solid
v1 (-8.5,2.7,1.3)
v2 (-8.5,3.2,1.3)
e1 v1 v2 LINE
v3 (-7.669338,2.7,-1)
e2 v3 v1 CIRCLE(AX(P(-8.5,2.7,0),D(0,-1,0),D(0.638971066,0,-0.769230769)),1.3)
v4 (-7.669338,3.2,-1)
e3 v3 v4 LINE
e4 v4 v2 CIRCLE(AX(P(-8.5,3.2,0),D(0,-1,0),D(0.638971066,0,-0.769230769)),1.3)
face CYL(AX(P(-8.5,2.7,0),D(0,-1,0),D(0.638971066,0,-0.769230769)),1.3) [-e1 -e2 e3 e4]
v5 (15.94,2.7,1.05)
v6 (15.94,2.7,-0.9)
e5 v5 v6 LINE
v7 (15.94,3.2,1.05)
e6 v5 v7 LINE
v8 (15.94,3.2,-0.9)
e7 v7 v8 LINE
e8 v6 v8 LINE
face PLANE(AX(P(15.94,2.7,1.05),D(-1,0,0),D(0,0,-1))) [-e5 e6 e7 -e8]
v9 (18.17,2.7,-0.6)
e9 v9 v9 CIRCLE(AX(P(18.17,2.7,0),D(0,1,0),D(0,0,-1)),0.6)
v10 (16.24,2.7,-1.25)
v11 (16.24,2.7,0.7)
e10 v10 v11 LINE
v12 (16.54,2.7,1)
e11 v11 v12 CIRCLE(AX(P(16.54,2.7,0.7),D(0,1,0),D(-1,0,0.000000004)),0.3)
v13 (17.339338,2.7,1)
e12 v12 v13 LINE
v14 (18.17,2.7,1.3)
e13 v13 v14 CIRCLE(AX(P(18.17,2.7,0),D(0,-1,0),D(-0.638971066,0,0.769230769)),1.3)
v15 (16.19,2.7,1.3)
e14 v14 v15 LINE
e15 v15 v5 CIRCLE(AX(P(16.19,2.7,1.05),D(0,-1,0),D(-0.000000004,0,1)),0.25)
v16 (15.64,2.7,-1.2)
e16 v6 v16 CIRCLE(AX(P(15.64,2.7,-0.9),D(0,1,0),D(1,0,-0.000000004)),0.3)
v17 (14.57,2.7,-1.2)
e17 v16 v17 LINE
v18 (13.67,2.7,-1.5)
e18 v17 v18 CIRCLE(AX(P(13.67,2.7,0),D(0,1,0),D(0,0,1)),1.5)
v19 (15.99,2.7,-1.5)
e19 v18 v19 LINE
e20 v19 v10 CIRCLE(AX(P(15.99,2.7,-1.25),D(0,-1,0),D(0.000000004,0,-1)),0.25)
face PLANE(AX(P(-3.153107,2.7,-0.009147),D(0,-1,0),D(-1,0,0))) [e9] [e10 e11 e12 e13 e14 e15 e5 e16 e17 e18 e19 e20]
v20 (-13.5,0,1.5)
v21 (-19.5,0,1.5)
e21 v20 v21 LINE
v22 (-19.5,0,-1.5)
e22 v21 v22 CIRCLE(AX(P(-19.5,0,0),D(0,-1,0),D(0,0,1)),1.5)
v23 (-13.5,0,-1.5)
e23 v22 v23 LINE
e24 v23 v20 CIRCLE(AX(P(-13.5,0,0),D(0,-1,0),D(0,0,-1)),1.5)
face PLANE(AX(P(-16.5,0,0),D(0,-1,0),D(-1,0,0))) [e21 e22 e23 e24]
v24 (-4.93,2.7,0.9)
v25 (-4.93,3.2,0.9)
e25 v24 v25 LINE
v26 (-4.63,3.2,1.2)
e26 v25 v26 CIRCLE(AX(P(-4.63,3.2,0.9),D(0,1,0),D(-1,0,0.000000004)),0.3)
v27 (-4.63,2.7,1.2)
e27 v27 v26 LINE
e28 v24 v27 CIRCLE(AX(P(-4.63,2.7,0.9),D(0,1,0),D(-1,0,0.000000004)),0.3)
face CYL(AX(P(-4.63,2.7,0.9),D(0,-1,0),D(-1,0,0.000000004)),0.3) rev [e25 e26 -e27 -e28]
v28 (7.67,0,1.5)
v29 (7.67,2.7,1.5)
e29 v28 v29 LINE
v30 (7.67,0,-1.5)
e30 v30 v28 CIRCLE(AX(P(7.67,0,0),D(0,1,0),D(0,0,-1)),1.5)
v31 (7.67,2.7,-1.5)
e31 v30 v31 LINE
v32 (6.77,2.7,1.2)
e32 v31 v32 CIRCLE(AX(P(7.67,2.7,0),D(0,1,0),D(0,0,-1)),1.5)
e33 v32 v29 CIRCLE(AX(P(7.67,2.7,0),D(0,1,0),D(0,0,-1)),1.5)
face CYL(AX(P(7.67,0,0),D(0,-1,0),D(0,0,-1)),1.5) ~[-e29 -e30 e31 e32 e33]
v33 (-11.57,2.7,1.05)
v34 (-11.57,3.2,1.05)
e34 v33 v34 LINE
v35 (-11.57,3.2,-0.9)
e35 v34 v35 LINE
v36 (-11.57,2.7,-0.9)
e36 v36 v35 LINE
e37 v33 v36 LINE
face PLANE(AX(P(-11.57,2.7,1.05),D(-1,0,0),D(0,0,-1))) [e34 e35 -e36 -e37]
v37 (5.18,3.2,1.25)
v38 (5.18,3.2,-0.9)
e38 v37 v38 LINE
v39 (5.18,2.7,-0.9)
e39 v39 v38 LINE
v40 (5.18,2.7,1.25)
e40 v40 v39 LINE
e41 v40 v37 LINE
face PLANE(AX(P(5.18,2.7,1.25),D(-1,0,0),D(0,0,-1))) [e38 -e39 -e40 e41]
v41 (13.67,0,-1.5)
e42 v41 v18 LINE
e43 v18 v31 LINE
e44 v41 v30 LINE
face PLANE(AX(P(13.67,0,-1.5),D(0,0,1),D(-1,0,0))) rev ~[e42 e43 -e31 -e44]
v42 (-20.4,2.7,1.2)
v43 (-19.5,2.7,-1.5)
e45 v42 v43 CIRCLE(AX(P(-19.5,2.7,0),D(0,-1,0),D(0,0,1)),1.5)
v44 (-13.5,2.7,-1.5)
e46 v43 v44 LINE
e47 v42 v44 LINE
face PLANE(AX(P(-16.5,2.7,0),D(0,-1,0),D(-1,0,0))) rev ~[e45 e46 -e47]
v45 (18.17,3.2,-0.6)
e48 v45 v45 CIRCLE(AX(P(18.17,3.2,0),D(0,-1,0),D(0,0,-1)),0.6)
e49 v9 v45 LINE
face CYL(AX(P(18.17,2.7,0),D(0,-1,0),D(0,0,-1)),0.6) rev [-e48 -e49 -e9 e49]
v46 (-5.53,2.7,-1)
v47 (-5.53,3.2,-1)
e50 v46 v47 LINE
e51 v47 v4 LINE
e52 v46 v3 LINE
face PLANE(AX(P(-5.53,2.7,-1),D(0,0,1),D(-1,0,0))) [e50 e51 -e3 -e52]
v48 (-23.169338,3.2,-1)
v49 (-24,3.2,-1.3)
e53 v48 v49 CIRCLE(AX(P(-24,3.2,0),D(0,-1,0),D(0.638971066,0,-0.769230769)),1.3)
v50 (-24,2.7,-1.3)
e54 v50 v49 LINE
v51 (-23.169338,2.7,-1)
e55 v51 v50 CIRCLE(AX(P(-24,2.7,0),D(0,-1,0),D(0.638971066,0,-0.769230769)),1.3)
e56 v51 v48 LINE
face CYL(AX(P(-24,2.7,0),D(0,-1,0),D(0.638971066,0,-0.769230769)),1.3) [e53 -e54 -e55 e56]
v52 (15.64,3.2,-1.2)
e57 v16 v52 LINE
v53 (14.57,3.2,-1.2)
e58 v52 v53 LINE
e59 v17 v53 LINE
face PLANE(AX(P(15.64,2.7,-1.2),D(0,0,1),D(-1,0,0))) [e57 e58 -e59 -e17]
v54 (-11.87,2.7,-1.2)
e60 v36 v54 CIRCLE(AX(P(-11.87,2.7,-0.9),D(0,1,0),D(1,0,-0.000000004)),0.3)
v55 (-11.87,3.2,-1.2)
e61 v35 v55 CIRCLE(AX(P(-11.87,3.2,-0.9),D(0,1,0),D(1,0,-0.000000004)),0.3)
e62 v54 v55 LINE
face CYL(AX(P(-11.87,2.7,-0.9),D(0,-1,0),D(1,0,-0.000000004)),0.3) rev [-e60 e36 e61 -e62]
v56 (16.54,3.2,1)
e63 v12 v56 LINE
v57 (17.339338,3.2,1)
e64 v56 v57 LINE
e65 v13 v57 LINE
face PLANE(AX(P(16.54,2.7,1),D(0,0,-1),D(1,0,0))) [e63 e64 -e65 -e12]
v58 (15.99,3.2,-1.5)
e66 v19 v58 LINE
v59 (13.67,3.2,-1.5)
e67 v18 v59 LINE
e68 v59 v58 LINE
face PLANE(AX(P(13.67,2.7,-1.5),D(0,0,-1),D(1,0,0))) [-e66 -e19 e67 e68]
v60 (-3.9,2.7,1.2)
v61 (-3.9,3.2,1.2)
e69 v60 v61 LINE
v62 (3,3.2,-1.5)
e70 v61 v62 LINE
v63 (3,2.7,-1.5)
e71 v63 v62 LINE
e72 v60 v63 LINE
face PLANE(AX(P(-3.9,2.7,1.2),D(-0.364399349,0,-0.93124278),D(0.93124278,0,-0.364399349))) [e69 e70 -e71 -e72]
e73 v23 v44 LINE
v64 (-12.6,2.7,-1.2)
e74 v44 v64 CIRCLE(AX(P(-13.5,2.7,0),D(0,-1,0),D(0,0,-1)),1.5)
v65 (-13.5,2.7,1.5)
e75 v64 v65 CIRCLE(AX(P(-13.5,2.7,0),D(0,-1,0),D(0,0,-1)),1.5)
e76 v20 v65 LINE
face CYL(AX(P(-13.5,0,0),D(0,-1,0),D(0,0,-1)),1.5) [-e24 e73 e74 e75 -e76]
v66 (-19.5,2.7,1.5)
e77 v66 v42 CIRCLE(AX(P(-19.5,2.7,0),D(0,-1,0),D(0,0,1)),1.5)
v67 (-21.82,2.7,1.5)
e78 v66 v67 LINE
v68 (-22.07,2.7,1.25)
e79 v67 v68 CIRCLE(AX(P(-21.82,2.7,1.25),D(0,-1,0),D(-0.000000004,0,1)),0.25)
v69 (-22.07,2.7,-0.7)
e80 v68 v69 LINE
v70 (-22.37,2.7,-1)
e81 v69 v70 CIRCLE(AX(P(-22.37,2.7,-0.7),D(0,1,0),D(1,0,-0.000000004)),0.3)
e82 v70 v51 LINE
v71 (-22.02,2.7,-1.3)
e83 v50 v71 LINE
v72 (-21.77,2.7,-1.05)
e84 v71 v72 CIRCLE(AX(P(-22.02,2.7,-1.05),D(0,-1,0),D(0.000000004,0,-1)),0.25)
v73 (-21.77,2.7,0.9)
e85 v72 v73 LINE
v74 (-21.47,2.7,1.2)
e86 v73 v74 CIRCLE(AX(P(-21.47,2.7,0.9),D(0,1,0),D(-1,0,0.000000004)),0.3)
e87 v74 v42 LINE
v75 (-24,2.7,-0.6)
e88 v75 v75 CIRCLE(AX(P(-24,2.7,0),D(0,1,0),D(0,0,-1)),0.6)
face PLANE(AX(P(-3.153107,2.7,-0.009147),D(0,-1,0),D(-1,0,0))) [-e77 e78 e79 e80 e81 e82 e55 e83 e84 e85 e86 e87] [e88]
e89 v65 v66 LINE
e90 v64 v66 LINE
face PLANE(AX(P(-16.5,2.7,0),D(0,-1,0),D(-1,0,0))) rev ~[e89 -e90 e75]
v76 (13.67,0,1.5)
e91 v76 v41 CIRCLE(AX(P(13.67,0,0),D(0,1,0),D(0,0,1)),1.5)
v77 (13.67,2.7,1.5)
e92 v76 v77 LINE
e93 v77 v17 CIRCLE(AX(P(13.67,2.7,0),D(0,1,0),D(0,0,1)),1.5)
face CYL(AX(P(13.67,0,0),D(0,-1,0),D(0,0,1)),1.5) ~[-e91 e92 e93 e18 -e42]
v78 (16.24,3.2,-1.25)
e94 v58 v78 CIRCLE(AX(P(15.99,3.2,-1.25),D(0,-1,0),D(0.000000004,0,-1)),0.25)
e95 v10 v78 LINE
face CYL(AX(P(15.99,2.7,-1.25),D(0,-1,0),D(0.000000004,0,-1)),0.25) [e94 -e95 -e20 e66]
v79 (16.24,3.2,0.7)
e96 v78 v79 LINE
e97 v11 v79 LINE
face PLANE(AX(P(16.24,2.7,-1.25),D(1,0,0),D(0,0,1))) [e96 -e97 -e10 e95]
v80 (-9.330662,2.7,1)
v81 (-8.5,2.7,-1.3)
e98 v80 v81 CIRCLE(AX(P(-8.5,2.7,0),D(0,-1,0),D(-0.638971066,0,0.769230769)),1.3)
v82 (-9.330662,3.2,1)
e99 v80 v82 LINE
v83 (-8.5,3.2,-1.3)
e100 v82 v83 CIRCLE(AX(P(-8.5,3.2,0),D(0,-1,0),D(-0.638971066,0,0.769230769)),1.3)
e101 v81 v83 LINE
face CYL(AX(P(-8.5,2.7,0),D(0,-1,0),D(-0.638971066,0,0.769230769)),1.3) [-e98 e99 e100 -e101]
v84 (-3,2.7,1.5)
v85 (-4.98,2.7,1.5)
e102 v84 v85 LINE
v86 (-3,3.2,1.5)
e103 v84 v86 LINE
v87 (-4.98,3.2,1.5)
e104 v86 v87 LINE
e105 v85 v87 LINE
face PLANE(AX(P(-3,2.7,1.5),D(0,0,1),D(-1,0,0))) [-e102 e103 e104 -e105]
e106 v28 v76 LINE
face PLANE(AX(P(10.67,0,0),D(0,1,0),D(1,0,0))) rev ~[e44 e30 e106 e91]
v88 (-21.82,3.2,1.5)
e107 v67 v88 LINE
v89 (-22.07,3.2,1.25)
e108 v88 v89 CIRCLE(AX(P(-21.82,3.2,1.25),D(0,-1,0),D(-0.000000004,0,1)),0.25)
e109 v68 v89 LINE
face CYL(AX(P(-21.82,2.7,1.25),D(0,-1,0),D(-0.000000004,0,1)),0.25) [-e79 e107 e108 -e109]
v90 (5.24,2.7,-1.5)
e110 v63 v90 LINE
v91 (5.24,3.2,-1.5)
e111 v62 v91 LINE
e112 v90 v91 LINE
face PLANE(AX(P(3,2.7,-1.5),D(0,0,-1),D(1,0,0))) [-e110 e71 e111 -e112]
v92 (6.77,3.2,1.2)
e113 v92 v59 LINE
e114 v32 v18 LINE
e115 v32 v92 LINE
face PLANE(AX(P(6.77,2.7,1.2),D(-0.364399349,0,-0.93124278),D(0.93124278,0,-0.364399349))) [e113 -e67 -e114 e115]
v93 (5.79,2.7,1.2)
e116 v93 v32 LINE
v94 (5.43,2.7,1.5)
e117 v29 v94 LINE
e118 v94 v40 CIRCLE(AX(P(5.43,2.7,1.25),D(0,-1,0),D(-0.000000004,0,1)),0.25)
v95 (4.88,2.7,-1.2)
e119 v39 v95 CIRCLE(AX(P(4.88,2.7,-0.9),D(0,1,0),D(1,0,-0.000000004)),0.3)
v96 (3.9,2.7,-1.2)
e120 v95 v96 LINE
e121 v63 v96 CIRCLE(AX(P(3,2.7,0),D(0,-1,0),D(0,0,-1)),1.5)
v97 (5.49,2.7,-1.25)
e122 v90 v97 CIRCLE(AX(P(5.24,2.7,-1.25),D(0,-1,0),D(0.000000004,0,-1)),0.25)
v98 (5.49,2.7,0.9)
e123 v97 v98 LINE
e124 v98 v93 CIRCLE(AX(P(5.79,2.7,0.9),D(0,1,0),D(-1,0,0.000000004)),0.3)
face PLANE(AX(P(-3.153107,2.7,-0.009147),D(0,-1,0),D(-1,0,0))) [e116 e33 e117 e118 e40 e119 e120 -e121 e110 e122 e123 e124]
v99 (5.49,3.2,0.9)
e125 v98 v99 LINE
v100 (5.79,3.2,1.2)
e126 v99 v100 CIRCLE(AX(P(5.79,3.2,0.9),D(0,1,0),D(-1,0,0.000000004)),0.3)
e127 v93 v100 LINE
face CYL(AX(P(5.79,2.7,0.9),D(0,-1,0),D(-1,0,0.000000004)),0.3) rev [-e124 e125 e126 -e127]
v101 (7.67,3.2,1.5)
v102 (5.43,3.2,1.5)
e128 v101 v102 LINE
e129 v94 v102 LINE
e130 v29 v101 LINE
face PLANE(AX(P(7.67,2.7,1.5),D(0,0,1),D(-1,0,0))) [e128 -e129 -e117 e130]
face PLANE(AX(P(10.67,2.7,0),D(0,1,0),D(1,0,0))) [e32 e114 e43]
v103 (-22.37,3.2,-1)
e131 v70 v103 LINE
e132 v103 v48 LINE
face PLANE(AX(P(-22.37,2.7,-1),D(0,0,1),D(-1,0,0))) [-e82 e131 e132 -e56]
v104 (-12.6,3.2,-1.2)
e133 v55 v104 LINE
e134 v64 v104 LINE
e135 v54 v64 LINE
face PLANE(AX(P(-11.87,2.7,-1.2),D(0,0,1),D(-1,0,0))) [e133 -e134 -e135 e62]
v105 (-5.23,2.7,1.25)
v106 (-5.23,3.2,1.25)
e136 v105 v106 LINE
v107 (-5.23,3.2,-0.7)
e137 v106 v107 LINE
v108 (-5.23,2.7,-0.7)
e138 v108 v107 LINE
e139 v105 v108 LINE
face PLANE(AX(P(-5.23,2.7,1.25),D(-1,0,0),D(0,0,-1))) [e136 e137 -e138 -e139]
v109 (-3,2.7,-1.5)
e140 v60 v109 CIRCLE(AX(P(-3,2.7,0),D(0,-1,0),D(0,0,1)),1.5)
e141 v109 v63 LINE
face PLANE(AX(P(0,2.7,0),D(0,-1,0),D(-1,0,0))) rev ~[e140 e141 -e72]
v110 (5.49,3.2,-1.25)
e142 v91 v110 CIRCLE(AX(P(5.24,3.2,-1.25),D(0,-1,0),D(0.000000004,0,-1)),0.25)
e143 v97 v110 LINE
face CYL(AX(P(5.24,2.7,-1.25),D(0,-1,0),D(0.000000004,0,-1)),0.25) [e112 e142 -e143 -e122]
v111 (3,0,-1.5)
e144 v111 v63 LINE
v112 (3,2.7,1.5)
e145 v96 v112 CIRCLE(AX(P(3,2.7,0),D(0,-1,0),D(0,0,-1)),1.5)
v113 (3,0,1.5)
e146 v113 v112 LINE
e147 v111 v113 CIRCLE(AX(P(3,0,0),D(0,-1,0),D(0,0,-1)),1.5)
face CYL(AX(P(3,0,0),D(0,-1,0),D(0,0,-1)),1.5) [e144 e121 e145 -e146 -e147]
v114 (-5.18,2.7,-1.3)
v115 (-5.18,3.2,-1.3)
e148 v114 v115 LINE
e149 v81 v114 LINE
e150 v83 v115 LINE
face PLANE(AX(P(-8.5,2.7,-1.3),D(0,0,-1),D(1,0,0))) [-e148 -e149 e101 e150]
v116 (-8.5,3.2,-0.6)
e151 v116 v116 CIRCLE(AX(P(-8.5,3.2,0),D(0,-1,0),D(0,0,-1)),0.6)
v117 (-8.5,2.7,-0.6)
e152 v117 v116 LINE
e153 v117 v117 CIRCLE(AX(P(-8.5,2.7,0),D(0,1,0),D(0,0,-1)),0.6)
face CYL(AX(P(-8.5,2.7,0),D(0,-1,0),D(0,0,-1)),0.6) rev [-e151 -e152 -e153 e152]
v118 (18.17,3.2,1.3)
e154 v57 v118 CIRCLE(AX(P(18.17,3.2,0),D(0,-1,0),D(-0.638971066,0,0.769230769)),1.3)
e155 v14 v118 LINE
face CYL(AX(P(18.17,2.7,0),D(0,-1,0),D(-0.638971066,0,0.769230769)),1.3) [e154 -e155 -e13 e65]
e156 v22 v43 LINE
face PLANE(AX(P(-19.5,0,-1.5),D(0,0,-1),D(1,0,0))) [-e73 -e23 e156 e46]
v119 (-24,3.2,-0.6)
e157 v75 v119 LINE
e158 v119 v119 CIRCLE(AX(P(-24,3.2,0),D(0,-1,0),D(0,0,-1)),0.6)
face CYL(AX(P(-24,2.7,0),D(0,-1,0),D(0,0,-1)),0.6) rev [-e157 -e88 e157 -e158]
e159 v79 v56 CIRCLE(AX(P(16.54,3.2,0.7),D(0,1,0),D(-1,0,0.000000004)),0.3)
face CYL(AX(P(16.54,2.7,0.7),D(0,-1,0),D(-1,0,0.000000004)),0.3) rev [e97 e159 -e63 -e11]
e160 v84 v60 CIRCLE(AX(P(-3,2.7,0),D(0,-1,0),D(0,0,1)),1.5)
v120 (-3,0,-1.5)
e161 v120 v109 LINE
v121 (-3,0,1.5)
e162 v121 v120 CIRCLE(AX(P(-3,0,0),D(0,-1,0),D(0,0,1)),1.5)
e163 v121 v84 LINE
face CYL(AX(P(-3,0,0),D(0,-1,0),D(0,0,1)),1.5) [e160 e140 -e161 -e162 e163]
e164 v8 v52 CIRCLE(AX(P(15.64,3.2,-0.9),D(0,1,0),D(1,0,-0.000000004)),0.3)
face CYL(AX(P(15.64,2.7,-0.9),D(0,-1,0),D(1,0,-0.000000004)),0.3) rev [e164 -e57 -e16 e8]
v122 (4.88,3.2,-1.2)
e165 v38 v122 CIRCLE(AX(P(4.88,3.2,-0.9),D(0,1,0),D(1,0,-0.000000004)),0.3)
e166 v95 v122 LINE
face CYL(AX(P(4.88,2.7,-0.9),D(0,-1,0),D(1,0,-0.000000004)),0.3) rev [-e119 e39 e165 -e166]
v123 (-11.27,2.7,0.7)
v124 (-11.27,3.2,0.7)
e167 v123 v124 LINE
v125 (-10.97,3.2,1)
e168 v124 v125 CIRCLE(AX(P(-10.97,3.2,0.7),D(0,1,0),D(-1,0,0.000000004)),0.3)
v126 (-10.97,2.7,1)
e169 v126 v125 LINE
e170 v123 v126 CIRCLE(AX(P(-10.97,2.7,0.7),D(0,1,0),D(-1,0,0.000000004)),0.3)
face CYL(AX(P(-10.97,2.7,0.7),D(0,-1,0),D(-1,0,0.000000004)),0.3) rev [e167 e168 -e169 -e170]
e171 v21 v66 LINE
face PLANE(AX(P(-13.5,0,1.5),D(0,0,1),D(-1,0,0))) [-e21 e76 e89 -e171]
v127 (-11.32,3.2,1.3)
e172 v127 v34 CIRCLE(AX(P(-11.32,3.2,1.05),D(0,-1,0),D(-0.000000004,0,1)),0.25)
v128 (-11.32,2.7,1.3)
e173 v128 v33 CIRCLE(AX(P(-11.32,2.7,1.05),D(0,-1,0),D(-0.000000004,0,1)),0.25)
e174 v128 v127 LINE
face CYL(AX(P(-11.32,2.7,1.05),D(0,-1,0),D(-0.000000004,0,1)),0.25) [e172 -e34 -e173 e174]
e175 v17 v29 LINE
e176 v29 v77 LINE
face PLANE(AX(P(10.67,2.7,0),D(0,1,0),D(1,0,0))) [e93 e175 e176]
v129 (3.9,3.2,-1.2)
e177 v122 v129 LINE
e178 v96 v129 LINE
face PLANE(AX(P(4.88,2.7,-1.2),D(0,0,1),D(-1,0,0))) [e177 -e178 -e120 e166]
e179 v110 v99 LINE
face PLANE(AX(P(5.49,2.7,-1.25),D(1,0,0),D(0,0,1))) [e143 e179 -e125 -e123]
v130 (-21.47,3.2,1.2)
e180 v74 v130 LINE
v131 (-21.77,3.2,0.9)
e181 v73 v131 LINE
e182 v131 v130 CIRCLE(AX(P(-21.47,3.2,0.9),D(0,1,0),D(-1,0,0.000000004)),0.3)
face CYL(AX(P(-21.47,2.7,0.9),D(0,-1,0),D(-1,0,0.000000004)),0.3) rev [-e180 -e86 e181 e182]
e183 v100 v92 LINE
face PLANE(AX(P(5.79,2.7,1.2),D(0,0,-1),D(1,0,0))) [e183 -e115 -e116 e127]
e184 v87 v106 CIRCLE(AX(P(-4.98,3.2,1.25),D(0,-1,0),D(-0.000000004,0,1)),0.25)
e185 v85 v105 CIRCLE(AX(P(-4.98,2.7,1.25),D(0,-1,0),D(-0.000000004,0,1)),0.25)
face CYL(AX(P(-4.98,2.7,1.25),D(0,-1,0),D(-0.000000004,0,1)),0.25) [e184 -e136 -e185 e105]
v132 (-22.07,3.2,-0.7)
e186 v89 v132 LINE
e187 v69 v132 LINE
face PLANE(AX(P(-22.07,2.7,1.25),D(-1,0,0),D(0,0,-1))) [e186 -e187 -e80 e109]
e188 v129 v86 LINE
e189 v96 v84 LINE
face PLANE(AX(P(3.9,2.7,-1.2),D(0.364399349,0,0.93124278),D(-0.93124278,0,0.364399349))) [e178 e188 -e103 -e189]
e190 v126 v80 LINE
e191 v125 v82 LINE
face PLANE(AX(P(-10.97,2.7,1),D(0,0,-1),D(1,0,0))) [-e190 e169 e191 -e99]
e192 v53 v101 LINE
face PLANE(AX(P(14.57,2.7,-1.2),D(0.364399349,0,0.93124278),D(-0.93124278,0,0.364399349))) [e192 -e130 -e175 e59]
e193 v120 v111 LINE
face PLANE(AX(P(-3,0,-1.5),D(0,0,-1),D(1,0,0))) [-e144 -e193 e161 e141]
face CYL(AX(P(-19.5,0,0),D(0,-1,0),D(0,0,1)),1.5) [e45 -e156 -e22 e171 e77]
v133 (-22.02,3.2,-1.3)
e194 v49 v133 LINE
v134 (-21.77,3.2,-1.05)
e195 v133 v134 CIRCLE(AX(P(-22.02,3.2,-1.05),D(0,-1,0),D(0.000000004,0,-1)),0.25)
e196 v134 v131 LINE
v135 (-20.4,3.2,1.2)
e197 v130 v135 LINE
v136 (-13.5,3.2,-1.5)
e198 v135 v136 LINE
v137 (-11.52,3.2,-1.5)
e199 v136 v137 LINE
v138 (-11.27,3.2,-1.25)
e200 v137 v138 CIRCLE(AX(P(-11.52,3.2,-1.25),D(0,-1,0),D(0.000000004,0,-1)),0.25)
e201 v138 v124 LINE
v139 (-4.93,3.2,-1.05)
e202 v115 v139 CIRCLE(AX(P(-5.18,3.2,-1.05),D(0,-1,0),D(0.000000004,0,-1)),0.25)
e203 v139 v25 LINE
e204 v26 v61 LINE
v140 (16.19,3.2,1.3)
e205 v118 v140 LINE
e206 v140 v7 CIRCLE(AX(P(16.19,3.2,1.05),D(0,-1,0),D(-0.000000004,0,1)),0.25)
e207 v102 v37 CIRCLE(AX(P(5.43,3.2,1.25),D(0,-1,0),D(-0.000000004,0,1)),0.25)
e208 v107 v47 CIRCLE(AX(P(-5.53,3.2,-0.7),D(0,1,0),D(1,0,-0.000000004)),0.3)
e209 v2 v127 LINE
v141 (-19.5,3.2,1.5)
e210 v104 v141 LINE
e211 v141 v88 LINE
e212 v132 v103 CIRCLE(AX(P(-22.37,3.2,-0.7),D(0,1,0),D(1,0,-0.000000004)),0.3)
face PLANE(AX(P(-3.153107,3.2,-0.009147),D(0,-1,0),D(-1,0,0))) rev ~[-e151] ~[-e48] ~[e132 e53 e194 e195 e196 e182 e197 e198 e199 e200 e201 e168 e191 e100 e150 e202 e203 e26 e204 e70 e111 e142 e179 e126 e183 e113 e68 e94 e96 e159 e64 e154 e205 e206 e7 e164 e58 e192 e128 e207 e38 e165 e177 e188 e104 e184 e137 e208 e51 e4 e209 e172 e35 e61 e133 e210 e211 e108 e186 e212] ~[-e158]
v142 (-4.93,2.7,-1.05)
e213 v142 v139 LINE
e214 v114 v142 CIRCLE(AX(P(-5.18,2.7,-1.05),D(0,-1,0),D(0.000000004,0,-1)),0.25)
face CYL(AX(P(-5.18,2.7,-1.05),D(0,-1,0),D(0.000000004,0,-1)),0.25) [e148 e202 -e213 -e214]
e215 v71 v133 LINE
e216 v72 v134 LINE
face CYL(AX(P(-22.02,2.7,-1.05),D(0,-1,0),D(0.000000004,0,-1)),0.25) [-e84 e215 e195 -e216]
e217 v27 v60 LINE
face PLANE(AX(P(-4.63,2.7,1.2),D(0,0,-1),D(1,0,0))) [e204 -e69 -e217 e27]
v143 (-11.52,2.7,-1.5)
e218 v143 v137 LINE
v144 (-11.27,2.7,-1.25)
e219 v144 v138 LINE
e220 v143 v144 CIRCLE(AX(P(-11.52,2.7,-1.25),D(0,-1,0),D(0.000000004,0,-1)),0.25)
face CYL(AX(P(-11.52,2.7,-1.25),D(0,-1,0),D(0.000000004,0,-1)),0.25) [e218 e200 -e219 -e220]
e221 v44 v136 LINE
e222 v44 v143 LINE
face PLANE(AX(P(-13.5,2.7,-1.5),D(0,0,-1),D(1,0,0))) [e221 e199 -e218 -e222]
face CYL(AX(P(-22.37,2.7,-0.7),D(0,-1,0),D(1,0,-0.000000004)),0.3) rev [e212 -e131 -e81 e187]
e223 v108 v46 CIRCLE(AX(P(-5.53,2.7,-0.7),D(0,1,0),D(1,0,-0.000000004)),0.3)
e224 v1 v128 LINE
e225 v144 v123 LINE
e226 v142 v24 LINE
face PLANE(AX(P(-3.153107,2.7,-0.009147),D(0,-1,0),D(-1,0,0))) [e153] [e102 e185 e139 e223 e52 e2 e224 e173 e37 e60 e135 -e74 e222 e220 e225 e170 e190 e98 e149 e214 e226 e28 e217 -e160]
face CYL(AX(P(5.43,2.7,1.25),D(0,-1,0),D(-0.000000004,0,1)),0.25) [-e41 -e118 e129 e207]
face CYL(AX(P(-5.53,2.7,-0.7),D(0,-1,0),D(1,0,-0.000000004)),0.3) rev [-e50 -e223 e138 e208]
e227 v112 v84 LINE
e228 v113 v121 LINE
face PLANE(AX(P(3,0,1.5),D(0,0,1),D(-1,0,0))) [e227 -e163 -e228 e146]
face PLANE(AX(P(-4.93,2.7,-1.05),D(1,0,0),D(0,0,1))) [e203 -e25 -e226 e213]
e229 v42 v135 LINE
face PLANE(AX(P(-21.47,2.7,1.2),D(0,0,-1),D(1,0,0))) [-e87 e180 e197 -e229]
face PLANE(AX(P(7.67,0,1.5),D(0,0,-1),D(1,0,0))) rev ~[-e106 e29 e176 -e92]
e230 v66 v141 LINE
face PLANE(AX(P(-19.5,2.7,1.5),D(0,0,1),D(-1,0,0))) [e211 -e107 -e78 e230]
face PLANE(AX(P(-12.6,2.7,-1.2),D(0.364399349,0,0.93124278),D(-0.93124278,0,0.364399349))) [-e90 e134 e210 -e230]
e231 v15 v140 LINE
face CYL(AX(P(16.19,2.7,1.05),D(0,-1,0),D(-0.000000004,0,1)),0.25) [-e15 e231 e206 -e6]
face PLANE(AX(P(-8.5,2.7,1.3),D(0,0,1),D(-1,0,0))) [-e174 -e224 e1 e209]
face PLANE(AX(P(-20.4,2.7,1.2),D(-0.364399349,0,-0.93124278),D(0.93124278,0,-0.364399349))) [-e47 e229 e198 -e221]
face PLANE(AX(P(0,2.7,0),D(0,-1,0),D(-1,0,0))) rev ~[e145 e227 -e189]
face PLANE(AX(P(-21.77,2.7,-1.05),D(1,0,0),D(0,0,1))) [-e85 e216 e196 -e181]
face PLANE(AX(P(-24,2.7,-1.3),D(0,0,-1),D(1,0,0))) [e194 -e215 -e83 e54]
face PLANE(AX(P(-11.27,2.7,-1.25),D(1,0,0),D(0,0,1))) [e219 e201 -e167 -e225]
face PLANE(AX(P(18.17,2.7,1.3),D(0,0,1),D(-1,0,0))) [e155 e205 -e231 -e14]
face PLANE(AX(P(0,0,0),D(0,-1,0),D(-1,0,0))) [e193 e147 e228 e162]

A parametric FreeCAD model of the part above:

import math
import FreeCAD as App
import Part
import Sketcher
from FreeCAD import Vector
Q = App.Units.Quantity

doc = App.newDocument("Part")
body = doc.addObject("PartDesign::Body", "Body")

# Sketch on XZ plane
sketch1 = body.newObject("Sketcher::SketchObject", "Sketch")
sketch1.AttachmentSupport = (doc.getObject("XZ_Plane"), [""])
sketch1.MapMode = "FlatFace"
sketch1.addGeometry(Part.LineSegment(Vector(7.67, 1.5, 0), Vector(13.67, 1.5, 0)), False)
sketch1.addGeometry(Part.ArcOfCircle(Part.Circle(Vector(13.67, 0, 0), Vector(0, 0, 1), 1.5), math.radians(-90), math.radians(90)), False)
sketch1.addGeometry(Part.LineSegment(Vector(13.67, -1.5, 0), Vector(7.67, -1.5, 0)), False)
sketch1.addGeometry(Part.ArcOfCircle(Part.Circle(Vector(7.67, 0, 0), Vector(0, 0, 1), 1.5), math.radians(90), math.radians(270)), False)
sketch1.addConstraint(Sketcher.Constraint("Tangent", 0, 2, 1, 2))
sketch1.addConstraint(Sketcher.Constraint("Tangent", 1, 1, 2, 1))
sketch1.addConstraint(Sketcher.Constraint("Tangent", 2, 2, 3, 2))
sketch1.addConstraint(Sketcher.Constraint("Tangent", 3, 1, 0, 1))
sketch1.addConstraint(Sketcher.Constraint("Horizontal", 0))
sketch1.addConstraint(Sketcher.Constraint("Horizontal", 2))
sketch1.addConstraint(Sketcher.Constraint("PointOnObject", 1, 3, -1))
sketch1.addConstraint(Sketcher.Constraint("Radius", 1, Q("1.5 mm")))
sketch1.addConstraint(Sketcher.Constraint("DistanceX", 0, 1, 0, 2, Q("6 mm")))
sketch1.addConstraint(Sketcher.Constraint("DistanceX", -1, 1, 1, 3, Q("13.67 mm")))
pad1 = body.newObject("PartDesign::Pad", "Pad")
pad1.Profile = sketch1
pad1.Length = 2.7
pad1.Reversed = True
body2 = doc.addObject("PartDesign::Body", "Body001")

# Sketch on XZ plane
sketch2 = body2.newObject("Sketcher::SketchObject", "Sketch001")
sketch2.AttachmentSupport = (doc.getObject("XZ_Plane001"), [""])
sketch2.MapMode = "FlatFace"
sketch2.addGeometry(Part.LineSegment(Vector(-13.5, -1.5, 0), Vector(-19.5, -1.5, 0)), False)
sketch2.addGeometry(Part.ArcOfCircle(Part.Circle(Vector(-19.5, 0, 0), Vector(0, 0, 1), 1.5), math.radians(90), math.radians(270)), False)
sketch2.addGeometry(Part.LineSegment(Vector(-19.5, 1.5, 0), Vector(-13.5, 1.5, 0)), False)
sketch2.addGeometry(Part.ArcOfCircle(Part.Circle(Vector(-13.5, 0, 0), Vector(0, 0, 1), 1.5), math.radians(-90), math.radians(90)), False)
sketch2.addConstraint(Sketcher.Constraint("Tangent", 0, 2, 1, 2))
sketch2.addConstraint(Sketcher.Constraint("Tangent", 1, 1, 2, 1))
sketch2.addConstraint(Sketcher.Constraint("Tangent", 2, 2, 3, 2))
sketch2.addConstraint(Sketcher.Constraint("Tangent", 3, 1, 0, 1))
sketch2.addConstraint(Sketcher.Constraint("Horizontal", 0))
sketch2.addConstraint(Sketcher.Constraint("Horizontal", 2))
sketch2.addConstraint(Sketcher.Constraint("PointOnObject", 1, 3, -1))
sketch2.addConstraint(Sketcher.Constraint("Radius", 1, Q("1.5 mm")))
sketch2.addConstraint(Sketcher.Constraint("DistanceX", 0, 2, 0, 1, Q("6 mm")))
sketch2.addConstraint(Sketcher.Constraint("DistanceX", 1, 3, -1, 1, Q("19.5 mm")))
pad2 = body2.newObject("PartDesign::Pad", "Pad001")
pad2.Profile = sketch2
pad2.Length = 2.7
pad2.Reversed = True
body3 = doc.addObject("PartDesign::Body", "Body002")

# Sketch on XZ plane
sketch3 = body3.newObject("Sketcher::SketchObject", "Sketch002")
sketch3.AttachmentSupport = (doc.getObject("XZ_Plane002"), [""])
sketch3.MapMode = "FlatFace"
sketch3.addGeometry(Part.LineSegment(Vector(3, -1.5, 0), Vector(-3, -1.5, 0)), False)
sketch3.addGeometry(Part.ArcOfCircle(Part.Circle(Vector(-3, 0, 0), Vector(0, 0, 1), 1.5), math.radians(90), math.radians(270)), False)
sketch3.addGeometry(Part.LineSegment(Vector(-3, 1.5, 0), Vector(3, 1.5, 0)), False)
sketch3.addGeometry(Part.ArcOfCircle(Part.Circle(Vector(3, 0, 0), Vector(0, 0, 1), 1.5), math.radians(-90), math.radians(90)), False)
sketch3.addConstraint(Sketcher.Constraint("Tangent", 0, 2, 1, 2))
sketch3.addConstraint(Sketcher.Constraint("Tangent", 1, 1, 2, 1))
sketch3.addConstraint(Sketcher.Constraint("Tangent", 2, 2, 3, 2))
sketch3.addConstraint(Sketcher.Constraint("Tangent", 3, 1, 0, 1))
sketch3.addConstraint(Sketcher.Constraint("Horizontal", 0))
sketch3.addConstraint(Sketcher.Constraint("Horizontal", 2))
sketch3.addConstraint(Sketcher.Constraint("Symmetric", 1, 3, 3, 3, -1, 1))
sketch3.addConstraint(Sketcher.Constraint("Radius", 1, Q("1.5 mm")))
sketch3.addConstraint(Sketcher.Constraint("DistanceX", 0, 2, 0, 1, Q("6 mm")))
pad3 = body3.newObject("PartDesign::Pad", "Pad002")
pad3.Profile = sketch3
pad3.Length = 2.7
pad3.Reversed = True
body.AllowCompound = True
doc.recompute()

boolean = body.newObject("PartDesign::Boolean", "Boolean")
boolean.Type = "Fuse"
boolean.addObjects([body2])
doc.recompute()

boolean2 = body.newObject("PartDesign::Boolean", "Boolean001")
boolean2.Type = "Fuse"
boolean2.addObjects([body3])

# Sketch on XZ plane
sketch4 = body.newObject("Sketcher::SketchObject", "Sketch003")
sketch4.AttachmentSupport = (doc.getObject("XZ_Plane"), [""])
sketch4.MapMode = "FlatFace"
sketch4.AttachmentOffset = App.Placement(Vector(0, 0, -2.7), App.Rotation())
sketch4.addGeometry(Part.LineSegment(Vector(-22.02, -1.3, 0), Vector(-24, -1.3, 0)), False)
sketch4.addGeometry(Part.ArcOfCircle(Part.Circle(Vector(-24, 0, 0), Vector(0, 0, 1), 1.3), math.radians(-50.284863), math.radians(270)), False)
sketch4.addGeometry(Part.LineSegment(Vector(-23.169338, -1, 0), Vector(-22.37, -1, 0)), False)
sketch4.addGeometry(Part.ArcOfCircle(Part.Circle(Vector(-22.37, -0.7, 0), Vector(0, 0, 1), 0.3), math.radians(-90), math.radians(0)), False)
sketch4.addGeometry(Part.LineSegment(Vector(-22.07, -0.7, 0), Vector(-22.07, 1.25, 0)), False)
sketch4.addGeometry(Part.ArcOfCircle(Part.Circle(Vector(-21.82, 1.25, 0), Vector(0, 0, 1), 0.25), math.radians(90), math.radians(180)), False)
sketch4.addGeometry(Part.LineSegment(Vector(-21.82, 1.5, 0), Vector(-19.5, 1.5, 0)), False)
sketch4.addGeometry(Part.LineSegment(Vector(-19.5, 1.5, 0), Vector(-12.6, -1.2, 0)), False)
sketch4.addGeometry(Part.LineSegment(Vector(-12.6, -1.2, 0), Vector(-11.87, -1.2, 0)), False)
sketch4.addGeometry(Part.ArcOfCircle(Part.Circle(Vector(-11.87, -0.9, 0), Vector(0, 0, 1), 0.3), math.radians(-90), math.radians(0)), False)
sketch4.addGeometry(Part.LineSegment(Vector(-11.57, -0.9, 0), Vector(-11.57, 1.05, 0)), False)
sketch4.addGeometry(Part.ArcOfCircle(Part.Circle(Vector(-11.32, 1.05, 0), Vector(0, 0, 1), 0.25), math.radians(90), math.radians(180)), False)
sketch4.addGeometry(Part.LineSegment(Vector(-11.32, 1.3, 0), Vector(-8.5, 1.3, 0)), False)
sketch4.addGeometry(Part.ArcOfCircle(Part.Circle(Vector(-8.5, 0, 0), Vector(0, 0, 1), 1.3), math.radians(-50.284863), math.radians(90)), False)
sketch4.addGeometry(Part.LineSegment(Vector(-7.669338, -1, 0), Vector(-5.53, -1, 0)), False)
sketch4.addGeometry(Part.ArcOfCircle(Part.Circle(Vector(-5.53, -0.7, 0), Vector(0, 0, 1), 0.3), math.radians(-90), math.radians(0)), False)
sketch4.addGeometry(Part.LineSegment(Vector(-5.23, -0.7, 0), Vector(-5.23, 1.25, 0)), False)
sketch4.addGeometry(Part.ArcOfCircle(Part.Circle(Vector(-4.98, 1.25, 0), Vector(0, 0, 1), 0.25), math.radians(90), math.radians(180)), False)
sketch4.addGeometry(Part.LineSegment(Vector(-4.98, 1.5, 0), Vector(-3, 1.5, 0)), False)
sketch4.addGeometry(Part.LineSegment(Vector(-3, 1.5, 0), Vector(3.9, -1.2, 0)), False)
sketch4.addGeometry(Part.LineSegment(Vector(3.9, -1.2, 0), Vector(4.88, -1.2, 0)), False)
sketch4.addGeometry(Part.ArcOfCircle(Part.Circle(Vector(4.88, -0.9, 0), Vector(0, 0, 1), 0.3), math.radians(-90), math.radians(0)), False)
sketch4.addGeometry(Part.LineSegment(Vector(5.18, -0.9, 0), Vector(5.18, 1.25, 0)), False)
sketch4.addGeometry(Part.ArcOfCircle(Part.Circle(Vector(5.43, 1.25, 0), Vector(0, 0, 1), 0.25), math.radians(90), math.radians(180)), False)
sketch4.addGeometry(Part.LineSegment(Vector(5.43, 1.5, 0), Vector(7.67, 1.5, 0)), False)
sketch4.addGeometry(Part.LineSegment(Vector(7.67, 1.5, 0), Vector(14.57, -1.2, 0)), False)
sketch4.addGeometry(Part.LineSegment(Vector(14.57, -1.2, 0), Vector(15.64, -1.2, 0)), False)
sketch4.addGeometry(Part.ArcOfCircle(Part.Circle(Vector(15.64, -0.9, 0), Vector(0, 0, 1), 0.3), math.radians(-90), math.radians(0)), False)
sketch4.addGeometry(Part.LineSegment(Vector(15.94, -0.9, 0), Vector(15.94, 1.05, 0)), False)
sketch4.addGeometry(Part.ArcOfCircle(Part.Circle(Vector(16.19, 1.05, 0), Vector(0, 0, 1), 0.25), math.radians(90), math.radians(180)), False)
sketch4.addGeometry(Part.LineSegment(Vector(16.19, 1.3, 0), Vector(18.17, 1.3, 0)), False)
sketch4.addGeometry(Part.ArcOfCircle(Part.Circle(Vector(18.17, 0, 0), Vector(0, 0, 1), 1.3), math.radians(129.715137), math.radians(450)), False)
sketch4.addGeometry(Part.LineSegment(Vector(17.339338, 1, 0), Vector(16.54, 1, 0)), False)
sketch4.addGeometry(Part.ArcOfCircle(Part.Circle(Vector(16.54, 0.7, 0), Vector(0, 0, 1), 0.3), math.radians(90), math.radians(180)), False)
sketch4.addGeometry(Part.LineSegment(Vector(16.24, 0.7, 0), Vector(16.24, -1.25, 0)), False)
sketch4.addGeometry(Part.ArcOfCircle(Part.Circle(Vector(15.99, -1.25, 0), Vector(0, 0, 1), 0.25), math.radians(-90), math.radians(0)), False)
sketch4.addGeometry(Part.LineSegment(Vector(15.99, -1.5, 0), Vector(13.67, -1.5, 0)), False)
sketch4.addGeometry(Part.LineSegment(Vector(13.67, -1.5, 0), Vector(6.77, 1.2, 0)), False)
sketch4.addGeometry(Part.LineSegment(Vector(6.77, 1.2, 0), Vector(5.79, 1.2, 0)), False)
sketch4.addGeometry(Part.ArcOfCircle(Part.Circle(Vector(5.79, 0.9, 0), Vector(0, 0, 1), 0.3), math.radians(90), math.radians(180)), False)
sketch4.addGeometry(Part.LineSegment(Vector(5.49, 0.9, 0), Vector(5.49, -1.25, 0)), False)
sketch4.addGeometry(Part.ArcOfCircle(Part.Circle(Vector(5.24, -1.25, 0), Vector(0, 0, 1), 0.25), math.radians(-90), math.radians(0)), False)
sketch4.addGeometry(Part.LineSegment(Vector(5.24, -1.5, 0), Vector(3, -1.5, 0)), False)
sketch4.addGeometry(Part.LineSegment(Vector(3, -1.5, 0), Vector(-3.9, 1.2, 0)), False)
sketch4.addGeometry(Part.LineSegment(Vector(-3.9, 1.2, 0), Vector(-4.63, 1.2, 0)), False)
sketch4.addGeometry(Part.ArcOfCircle(Part.Circle(Vector(-4.63, 0.9, 0), Vector(0, 0, 1), 0.3), math.radians(90), math.radians(180)), False)
sketch4.addGeometry(Part.LineSegment(Vector(-4.93, 0.9, 0), Vector(-4.93, -1.05, 0)), False)
sketch4.addGeometry(Part.ArcOfCircle(Part.Circle(Vector(-5.18, -1.05, 0), Vector(0, 0, 1), 0.25), math.radians(-90), math.radians(0)), False)
sketch4.addGeometry(Part.LineSegment(Vector(-5.18, -1.3, 0), Vector(-8.5, -1.3, 0)), False)
sketch4.addGeometry(Part.ArcOfCircle(Part.Circle(Vector(-8.5, 0, 0), Vector(0, 0, 1), 1.3), math.radians(129.715137), math.radians(270)), False)
sketch4.addGeometry(Part.LineSegment(Vector(-9.330662, 1, 0), Vector(-10.97, 1, 0)), False)
sketch4.addGeometry(Part.ArcOfCircle(Part.Circle(Vector(-10.97, 0.7, 0), Vector(0, 0, 1), 0.3), math.radians(90), math.radians(180)), False)
sketch4.addGeometry(Part.LineSegment(Vector(-11.27, 0.7, 0), Vector(-11.27, -1.25, 0)), False)
sketch4.addGeometry(Part.ArcOfCircle(Part.Circle(Vector(-11.52, -1.25, 0), Vector(0, 0, 1), 0.25), math.radians(-90), math.radians(0)), False)
sketch4.addGeometry(Part.LineSegment(Vector(-11.52, -1.5, 0), Vector(-13.5, -1.5, 0)), False)
sketch4.addGeometry(Part.LineSegment(Vector(-13.5, -1.5, 0), Vector(-20.4, 1.2, 0)), False)
sketch4.addGeometry(Part.LineSegment(Vector(-20.4, 1.2, 0), Vector(-21.47, 1.2, 0)), False)
sketch4.addGeometry(Part.ArcOfCircle(Part.Circle(Vector(-21.47, 0.9, 0), Vector(0, 0, 1), 0.3), math.radians(90), math.radians(180)), False)
sketch4.addGeometry(Part.LineSegment(Vector(-21.77, 0.9, 0), Vector(-21.77, -1.05, 0)), False)
sketch4.addGeometry(Part.ArcOfCircle(Part.Circle(Vector(-22.02, -1.05, 0), Vector(0, 0, 1), 0.25), math.radians(-90), math.radians(0)), False)
sketch4.addConstraint(Sketcher.Constraint("Tangent", 0, 2, 1, 2))
sketch4.addConstraint(Sketcher.Constraint("Coincident", 1, 1, 2, 1))
sketch4.addConstraint(Sketcher.Constraint("Tangent", 2, 2, 3, 1))
sketch4.addConstraint(Sketcher.Constraint("Tangent", 3, 2, 4, 1))
sketch4.addConstraint(Sketcher.Constraint("Tangent", 4, 2, 5, 2))
sketch4.addConstraint(Sketcher.Constraint("Tangent", 5, 1, 6, 1))
sketch4.addConstraint(Sketcher.Constraint("Coincident", 6, 2, 7, 1))
sketch4.addConstraint(Sketcher.Constraint("Coincident", 7, 2, 8, 1))
sketch4.addConstraint(Sketcher.Constraint("Tangent", 8, 2, 9, 1))
sketch4.addConstraint(Sketcher.Constraint("Tangent", 9, 2, 10, 1))
sketch4.addConstraint(Sketcher.Constraint("Tangent", 10, 2, 11, 2))
sketch4.addConstraint(Sketcher.Constraint("Tangent", 11, 1, 12, 1))
sketch4.addConstraint(Sketcher.Constraint("Tangent", 12, 2, 13, 2))
sketch4.addConstraint(Sketcher.Constraint("Coincident", 13, 1, 14, 1))
sketch4.addConstraint(Sketcher.Constraint("Tangent", 14, 2, 15, 1))
sketch4.addConstraint(Sketcher.Constraint("Tangent", 15, 2, 16, 1))
sketch4.addConstraint(Sketcher.Constraint("Tangent", 16, 2, 17, 2))
sketch4.addConstraint(Sketcher.Constraint("Tangent", 17, 1, 18, 1))
sketch4.addConstraint(Sketcher.Constraint("Coincident", 18, 2, 19, 1))
sketch4.addConstraint(Sketcher.Constraint("Coincident", 19, 2, 20, 1))
sketch4.addConstraint(Sketcher.Constraint("Tangent", 20, 2, 21, 1))
sketch4.addConstraint(Sketcher.Constraint("Tangent", 21, 2, 22, 1))
sketch4.addConstraint(Sketcher.Constraint("Tangent", 22, 2, 23, 2))
sketch4.addConstraint(Sketcher.Constraint("Tangent", 23, 1, 24, 1))
sketch4.addConstraint(Sketcher.Constraint("Coincident", 24, 2, 25, 1))
sketch4.addConstraint(Sketcher.Constraint("Coincident", 25, 2, 26, 1))
sketch4.addConstraint(Sketcher.Constraint("Tangent", 26, 2, 27, 1))
sketch4.addConstraint(Sketcher.Constraint("Tangent", 27, 2, 28, 1))
sketch4.addConstraint(Sketcher.Constraint("Tangent", 28, 2, 29, 2))
sketch4.addConstraint(Sketcher.Constraint("Tangent", 29, 1, 30, 1))
sketch4.addConstraint(Sketcher.Constraint("Tangent", 30, 2, 31, 2))
sketch4.addConstraint(Sketcher.Constraint("Coincident", 31, 1, 32, 1))
sketch4.addConstraint(Sketcher.Constraint("Tangent", 32, 2, 33, 1))
sketch4.addConstraint(Sketcher.Constraint("Tangent", 33, 2, 34, 1))
sketch4.addConstraint(Sketcher.Constraint("Tangent", 34, 2, 35, 2))
sketch4.addConstraint(Sketcher.Constraint("Tangent", 35, 1, 36, 1))
sketch4.addConstraint(Sketcher.Constraint("Coincident", 36, 2, 37, 1))
sketch4.addConstraint(Sketcher.Constraint("Coincident", 37, 2, 38, 1))
sketch4.addConstraint(Sketcher.Constraint("Tangent", 38, 2, 39, 1))
sketch4.addConstraint(Sketcher.Constraint("Tangent", 39, 2, 40, 1))
sketch4.addConstraint(Sketcher.Constraint("Tangent", 40, 2, 41, 2))
sketch4.addConstraint(Sketcher.Constraint("Tangent", 41, 1, 42, 1))
sketch4.addConstraint(Sketcher.Constraint("Coincident", 42, 2, 43, 1))
sketch4.addConstraint(Sketcher.Constraint("Coincident", 43, 2, 44, 1))
sketch4.addConstraint(Sketcher.Constraint("Tangent", 44, 2, 45, 1))
sketch4.addConstraint(Sketcher.Constraint("Tangent", 45, 2, 46, 1))
sketch4.addConstraint(Sketcher.Constraint("Tangent", 46, 2, 47, 2))
sketch4.addConstraint(Sketcher.Constraint("Tangent", 47, 1, 48, 1))
sketch4.addConstraint(Sketcher.Constraint("Tangent", 48, 2, 49, 2))
sketch4.addConstraint(Sketcher.Constraint("Coincident", 49, 1, 50, 1))
sketch4.addConstraint(Sketcher.Constraint("Tangent", 50, 2, 51, 1))
sketch4.addConstraint(Sketcher.Constraint("Tangent", 51, 2, 52, 1))
sketch4.addConstraint(Sketcher.Constraint("Tangent", 52, 2, 53, 2))
sketch4.addConstraint(Sketcher.Constraint("Tangent", 53, 1, 54, 1))
sketch4.addConstraint(Sketcher.Constraint("Coincident", 54, 2, 55, 1))
sketch4.addConstraint(Sketcher.Constraint("Coincident", 55, 2, 56, 1))
sketch4.addConstraint(Sketcher.Constraint("Tangent", 56, 2, 57, 1))
sketch4.addConstraint(Sketcher.Constraint("Tangent", 57, 2, 58, 1))
sketch4.addConstraint(Sketcher.Constraint("Tangent", 58, 2, 59, 2))
sketch4.addConstraint(Sketcher.Constraint("Tangent", 59, 1, 0, 1))
sketch4.addConstraint(Sketcher.Constraint("Horizontal", 0))
sketch4.addConstraint(Sketcher.Constraint("Horizontal", 2))
sketch4.addConstraint(Sketcher.Constraint("Vertical", 4))
sketch4.addConstraint(Sketcher.Constraint("Horizontal", 6))
sketch4.addConstraint(Sketcher.Constraint("Horizontal", 8))
sketch4.addConstraint(Sketcher.Constraint("Vertical", 10))
sketch4.addConstraint(Sketcher.Constraint("Horizontal", 12))
sketch4.addConstraint(Sketcher.Constraint("Horizontal", 14))
sketch4.addConstraint(Sketcher.Constraint("Vertical", 16))
sketch4.addConstraint(Sketcher.Constraint("Horizontal", 18))
sketch4.addConstraint(Sketcher.Constraint("Horizontal", 20))
sketch4.addConstraint(Sketcher.Constraint("Vertical", 22))
sketch4.addConstraint(Sketcher.Constraint("Horizontal", 24))
sketch4.addConstraint(Sketcher.Constraint("Horizontal", 26))
sketch4.addConstraint(Sketcher.Constraint("Vertical", 28))
sketch4.addConstraint(Sketcher.Constraint("Horizontal", 30))
sketch4.addConstraint(Sketcher.Constraint("Horizontal", 32))
sketch4.addConstraint(Sketcher.Constraint("Vertical", 34))
sketch4.addConstraint(Sketcher.Constraint("Horizontal", 36))
sketch4.addConstraint(Sketcher.Constraint("Horizontal", 38))
sketch4.addConstraint(Sketcher.Constraint("Vertical", 40))
sketch4.addConstraint(Sketcher.Constraint("Horizontal", 42))
sketch4.addConstraint(Sketcher.Constraint("Horizontal", 44))
sketch4.addConstraint(Sketcher.Constraint("Vertical", 46))
sketch4.addConstraint(Sketcher.Constraint("Horizontal", 48))
sketch4.addConstraint(Sketcher.Constraint("Horizontal", 50))
sketch4.addConstraint(Sketcher.Constraint("Vertical", 52))
sketch4.addConstraint(Sketcher.Constraint("Horizontal", 54))
sketch4.addConstraint(Sketcher.Constraint("Horizontal", 56))
sketch4.addConstraint(Sketcher.Constraint("Vertical", 58))
sketch4.addConstraint(Sketcher.Constraint("Coincident", 49, 3, 13, 3))
sketch4.addConstraint(Sketcher.Constraint("Equal", 3, 9))
sketch4.addConstraint(Sketcher.Constraint("Equal", 5, 11))
sketch4.addConstraint(Sketcher.Constraint("Equal", 1, 13))
sketch4.addConstraint(Sketcher.Constraint("Equal", 9, 15))
sketch4.addConstraint(Sketcher.Constraint("Equal", 11, 17))
sketch4.addConstraint(Sketcher.Constraint("Equal", 15, 21))
sketch4.addConstraint(Sketcher.Constraint("Equal", 17, 23))
sketch4.addConstraint(Sketcher.Constraint("Equal", 21, 27))
sketch4.addConstraint(Sketcher.Constraint("Equal", 23, 29))
sketch4.addConstraint(Sketcher.Constraint("Equal", 13, 31))
sketch4.addConstraint(Sketcher.Constraint("Equal", 27, 33))
sketch4.addConstraint(Sketcher.Constraint("Equal", 29, 35))
sketch4.addConstraint(Sketcher.Constraint("Equal", 33, 39))
sketch4.addConstraint(Sketcher.Constraint("Equal", 35, 41))
sketch4.addConstraint(Sketcher.Constraint("Equal", 39, 45))
sketch4.addConstraint(Sketcher.Constraint("Equal", 41, 47))
sketch4.addConstraint(Sketcher.Constraint("Equal", 31, 49))
sketch4.addConstraint(Sketcher.Constraint("Equal", 45, 51))
sketch4.addConstraint(Sketcher.Constraint("Equal", 47, 53))
sketch4.addConstraint(Sketcher.Constraint("Equal", 51, 57))
sketch4.addConstraint(Sketcher.Constraint("Equal", 53, 59))
sketch4.addConstraint(Sketcher.Constraint("Symmetric", 18, 2, 42, 2, -1, 1))
sketch4.addConstraint(Sketcher.Constraint("Symmetric", 19, 2, 43, 2, -1, 1))
sketch4.addConstraint(Sketcher.Constraint("PointOnObject", 1, 3, -1))
sketch4.addConstraint(Sketcher.Constraint("PointOnObject", 13, 3, -1))
sketch4.addConstraint(Sketcher.Constraint("PointOnObject", 31, 3, -1))
sketch4.addConstraint(Sketcher.Constraint("Parallel", 7, 19))
sketch4.addConstraint(Sketcher.Constraint("Parallel", 19, 25))
sketch4.addConstraint(Sketcher.Constraint("Parallel", 25, 37))
sketch4.addConstraint(Sketcher.Constraint("Parallel", 43, 55))
sketch4.addConstraint(Sketcher.Constraint("Horizontal", 3, 3, 15, 3))
sketch4.addConstraint(Sketcher.Constraint("Horizontal", 5, 3, 17, 3))
sketch4.addConstraint(Sketcher.Constraint("Horizontal", 9, 3, 21, 3))
sketch4.addConstraint(Sketcher.Constraint("Horizontal", 17, 3, 23, 3))
sketch4.addConstraint(Sketcher.Constraint("Horizontal", 21, 3, 27, 3))
sketch4.addConstraint(Sketcher.Constraint("Horizontal", 35, 3, 41, 3))
sketch4.addConstraint(Sketcher.Constraint("Horizontal", 39, 3, 45, 3))
sketch4.addConstraint(Sketcher.Constraint("Horizontal", 33, 3, 51, 3))
sketch4.addConstraint(Sketcher.Constraint("Horizontal", 41, 3, 53, 3))
sketch4.addConstraint(Sketcher.Constraint("Horizontal", 45, 3, 57, 3))
sketch4.addConstraint(Sketcher.Constraint("Equal", 0, 18))
sketch4.addConstraint(Sketcher.Constraint("Equal", 18, 30))
sketch4.addConstraint(Sketcher.Constraint("Equal", 2, 32))
sketch4.addConstraint(Sketcher.Constraint("Equal", 6, 36))
sketch4.addConstraint(Sketcher.Constraint("Equal", 20, 38))
sketch4.addConstraint(Sketcher.Constraint("Equal", 24, 42))
sketch4.addConstraint(Sketcher.Constraint("Equal", 8, 44))
sketch4.addConstraint(Sketcher.Constraint("Equal", 30, 54))
sketch4.addConstraint(Sketcher.Constraint("Equal", 26, 56))
sketch4.addConstraint(Sketcher.Constraint("Equal", 4, 10))
sketch4.addConstraint(Sketcher.Constraint("Equal", 28, 34))
sketch4.addConstraint(Sketcher.Constraint("Radius", 1, Q("1.3 mm")))
sketch4.addConstraint(Sketcher.Constraint("Radius", 3, Q("0.3 mm")))
sketch4.addConstraint(Sketcher.Constraint("Radius", 5, Q("0.25 mm")))
sketch4.addConstraint(Sketcher.Constraint("DistanceX", 1, 3, -1, 1, Q("24 mm")))
sketch4.addConstraint(Sketcher.Constraint("DistanceY", 1, 1, -1, 1, Q("1 mm")))
sketch4.addConstraint(Sketcher.Constraint("DistanceX", 18, 2, -1, 1, Q("3 mm")))
sketch4.addConstraint(Sketcher.Constraint("DistanceX", 0, 2, 0, 1, Q("1.98 mm")))
sketch4.addConstraint(Sketcher.Constraint("DistanceX", 6, 1, 6, 2, Q("2.32 mm")))
sketch4.addConstraint(Sketcher.Constraint("DistanceX", 8, 1, 8, 2, Q("0.73 mm")))
sketch4.addConstraint(Sketcher.Constraint("DistanceX", 12, 1, 12, 2, Q("2.82 mm")))
sketch4.addConstraint(Sketcher.Constraint("DistanceX", 20, 1, 20, 2, Q("0.98 mm")))
sketch4.addConstraint(Sketcher.Constraint("DistanceX", 24, 1, 24, 2, Q("2.24 mm")))
sketch4.addConstraint(Sketcher.Constraint("DistanceX", 26, 1, 26, 2, Q("1.07 mm")))
sketch4.addConstraint(Sketcher.Constraint("DistanceX", 48, 2, 48, 1, Q("3.32 mm")))
sketch4.addConstraint(Sketcher.Constraint("DistanceY", 4, 1, 4, 2, Q("1.95 mm")))
pad4 = body.newObject("PartDesign::Pad", "Pad003")
pad4.Profile = sketch4
pad4.Length = 0.5
pad4.Reversed = True

# Sketch on XZ plane
sketch5 = body.newObject("Sketcher::SketchObject", "Sketch004")
sketch5.AttachmentSupport = (doc.getObject("XZ_Plane"), [""])
sketch5.MapMode = "FlatFace"
sketch5.AttachmentOffset = App.Placement(Vector(0, 0, -2.7), App.Rotation())
sketch5.addGeometry(Part.Circle(Vector(-24, 0, 0), Vector(0, 0, 1), 0.6), False)
sketch5.addConstraint(Sketcher.Constraint("PointOnObject", 0, 3, -1))
sketch5.addConstraint(Sketcher.Constraint("Diameter", 0, Q("1.2 mm")))
sketch5.addConstraint(Sketcher.Constraint("DistanceX", 0, 3, -1, 1, Q("24 mm")))
pocket1 = body.newObject("PartDesign::Pocket", "Pocket")
pocket1.Profile = sketch5
pocket1.Type = "UpToFirst"

# Sketch on XZ plane
sketch6 = body.newObject("Sketcher::SketchObject", "Sketch005")
sketch6.AttachmentSupport = (doc.getObject("XZ_Plane"), [""])
sketch6.MapMode = "FlatFace"
sketch6.AttachmentOffset = App.Placement(Vector(0, 0, -2.7), App.Rotation())
sketch6.addGeometry(Part.Circle(Vector(-8.5, 0, 0), Vector(0, 0, 1), 0.6), False)
sketch6.addConstraint(Sketcher.Constraint("PointOnObject", 0, 3, -1))
sketch6.addConstraint(Sketcher.Constraint("Diameter", 0, Q("1.2 mm")))
sketch6.addConstraint(Sketcher.Constraint("DistanceX", 0, 3, -1, 1, Q("8.5 mm")))
pocket2 = body.newObject("PartDesign::Pocket", "Pocket001")
pocket2.Profile = sketch6
pocket2.Type = "UpToFirst"

# Sketch on XZ plane
sketch7 = body.newObject("Sketcher::SketchObject", "Sketch006")
sketch7.AttachmentSupport = (doc.getObject("XZ_Plane"), [""])
sketch7.MapMode = "FlatFace"
sketch7.AttachmentOffset = App.Placement(Vector(0, 0, -2.7), App.Rotation())
sketch7.addGeometry(Part.Circle(Vector(18.17, 0, 0), Vector(0, 0, 1), 0.6), False)
sketch7.addConstraint(Sketcher.Constraint("PointOnObject", 0, 3, -1))
sketch7.addConstraint(Sketcher.Constraint("Diameter", 0, Q("1.2 mm")))
sketch7.addConstraint(Sketcher.Constraint("DistanceX", -1, 1, 0, 3, Q("18.17 mm")))
pocket3 = body.newObject("PartDesign::Pocket", "Pocket002")
pocket3.Profile = sketch7
pocket3.Type = "UpToFirst"

doc.recompute()
